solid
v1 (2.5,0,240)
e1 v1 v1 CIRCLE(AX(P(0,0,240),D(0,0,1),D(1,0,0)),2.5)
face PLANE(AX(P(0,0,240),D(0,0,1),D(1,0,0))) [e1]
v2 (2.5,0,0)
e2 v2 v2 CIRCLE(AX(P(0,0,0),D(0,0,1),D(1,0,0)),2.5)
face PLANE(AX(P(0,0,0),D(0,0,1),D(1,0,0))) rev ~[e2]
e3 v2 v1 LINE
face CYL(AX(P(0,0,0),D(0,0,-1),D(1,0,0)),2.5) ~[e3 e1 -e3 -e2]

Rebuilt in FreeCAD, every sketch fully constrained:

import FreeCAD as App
import Part
import Sketcher

V = App.Vector
Q = App.Units.Quantity

doc = App.newDocument("Part")
params = doc.addObject("Spreadsheet::Sheet", "Params")
for row, (alias, value) in enumerate([
    ("sketch1_diameter", "5 mm"),
    ("pad1_length", "240 mm"),
], start=1):
    params.set(f"A{row}", alias)
    params.set(f"B{row}", "=" + value)
    params.setAlias(f"B{row}", alias)

body = doc.addObject("PartDesign::Body", "Body")

sketch1 = body.newObject("Sketcher::SketchObject", "Sketch")
sketch1.AttachmentSupport = (doc.getObject("XY_Plane"), [""])
sketch1.MapMode = "FlatFace"
sketch1.addGeometry(Part.Circle(V(0, 0, 0), V(0, 0, 1), 2.5), False)
sketch1.addConstraint(Sketcher.Constraint("Coincident", 0, 3, -1, 1))
sketch1.addConstraint(Sketcher.Constraint("Diameter", 0, Q("5 mm")))
sketch1.setExpression("Constraints[1]", "Params.sketch1_diameter")
pad1 = body.newObject("PartDesign::Pad", "Pad")
pad1.Profile = sketch1
pad1.setExpression("Length", "Params.pad1_length")

doc.recompute()
